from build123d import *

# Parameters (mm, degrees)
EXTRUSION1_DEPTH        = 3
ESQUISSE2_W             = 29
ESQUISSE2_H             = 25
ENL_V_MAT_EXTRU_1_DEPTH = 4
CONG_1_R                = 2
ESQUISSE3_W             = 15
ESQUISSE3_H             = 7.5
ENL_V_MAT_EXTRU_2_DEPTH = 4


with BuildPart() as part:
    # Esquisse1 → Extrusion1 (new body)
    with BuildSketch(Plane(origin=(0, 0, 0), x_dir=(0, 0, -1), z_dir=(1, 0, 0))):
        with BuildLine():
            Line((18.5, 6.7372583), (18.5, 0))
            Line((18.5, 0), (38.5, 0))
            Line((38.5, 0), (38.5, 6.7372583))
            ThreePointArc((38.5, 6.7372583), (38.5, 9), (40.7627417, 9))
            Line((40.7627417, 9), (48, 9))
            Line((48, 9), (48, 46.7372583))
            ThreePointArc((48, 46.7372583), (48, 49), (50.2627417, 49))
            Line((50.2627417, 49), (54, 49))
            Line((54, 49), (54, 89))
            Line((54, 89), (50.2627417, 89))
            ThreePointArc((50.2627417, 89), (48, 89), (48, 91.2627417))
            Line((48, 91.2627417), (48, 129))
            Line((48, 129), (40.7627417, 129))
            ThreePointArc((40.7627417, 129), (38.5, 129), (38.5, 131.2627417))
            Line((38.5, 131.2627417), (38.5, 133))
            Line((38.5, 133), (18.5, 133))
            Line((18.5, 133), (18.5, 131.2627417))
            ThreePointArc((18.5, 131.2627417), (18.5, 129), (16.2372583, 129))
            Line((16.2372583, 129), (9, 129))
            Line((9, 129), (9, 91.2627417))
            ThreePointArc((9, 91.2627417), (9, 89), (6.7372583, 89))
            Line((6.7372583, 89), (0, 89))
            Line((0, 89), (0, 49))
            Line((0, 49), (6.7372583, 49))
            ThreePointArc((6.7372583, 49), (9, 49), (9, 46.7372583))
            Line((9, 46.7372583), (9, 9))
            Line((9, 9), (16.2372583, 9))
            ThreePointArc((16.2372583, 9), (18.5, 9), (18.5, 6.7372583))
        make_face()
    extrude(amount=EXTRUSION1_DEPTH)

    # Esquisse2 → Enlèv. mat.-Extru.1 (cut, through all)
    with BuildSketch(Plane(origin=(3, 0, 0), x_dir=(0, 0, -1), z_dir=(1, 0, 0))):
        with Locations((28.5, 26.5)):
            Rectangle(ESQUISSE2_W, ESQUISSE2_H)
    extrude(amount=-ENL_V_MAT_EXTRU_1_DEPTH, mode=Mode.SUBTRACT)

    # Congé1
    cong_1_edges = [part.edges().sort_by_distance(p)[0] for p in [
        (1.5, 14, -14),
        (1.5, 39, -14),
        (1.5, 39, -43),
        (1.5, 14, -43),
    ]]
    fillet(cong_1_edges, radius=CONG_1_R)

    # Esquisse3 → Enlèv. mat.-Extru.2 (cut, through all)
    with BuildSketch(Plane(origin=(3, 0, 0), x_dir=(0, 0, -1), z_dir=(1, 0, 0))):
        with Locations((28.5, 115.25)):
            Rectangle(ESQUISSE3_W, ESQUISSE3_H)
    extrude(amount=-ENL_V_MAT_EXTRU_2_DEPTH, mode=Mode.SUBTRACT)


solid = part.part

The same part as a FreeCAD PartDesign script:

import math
import FreeCAD as App
import Part
import Sketcher

V = App.Vector


def edges_at(feature, points):
    """Names of the edges that pass closest to the given points."""
    edges = feature.Shape.Edges
    near = lambda p: min(range(len(edges)), key=lambda i: edges[i].distToShape(Part.Vertex(*p))[0])
    return sorted({f"Edge{near(p) + 1}" for p in points})


def add_polygon(sketch, points):
    """Adds a closed chain of lines whose ends are joined by coincident constraints."""
    first, n = sketch.GeometryCount, len(points)
    for a, b in zip(points, points[1:] + points[:1]):
        sketch.addGeometry(Part.LineSegment(App.Vector(*a, 0), App.Vector(*b, 0)), False)
    for i in range(n):
        sketch.addConstraint(Sketcher.Constraint("Coincident", first + i, 2, first + (i + 1) % n, 1))

doc = App.newDocument("Part")
body = doc.addObject("PartDesign::Body", "Body")

# Sketch on YZ plane
sketch1 = doc.addObject("Sketcher::SketchObject", "Sketch")
body.addObject(sketch1)
sketch1.AttachmentSupport = (doc.YZ_Plane, [""])
sketch1.MapMode = "FlatFace"
sketch1.addGeometry(Part.LineSegment(V(6.7, -18.5, 0), V(0, -18.5, 0)), False)
sketch1.addGeometry(Part.LineSegment(V(0, -18.5, 0), V(0, -38.5, 0)), False)
sketch1.addGeometry(Part.LineSegment(V(0, -38.5, 0), V(6.7, -38.5, 0)), False)
sketch1.addGeometry(Part.ArcOfCircle(Part.Circle(V(7.9, -39.6, 0), V(0, 0, 1), 1.6), math.radians(-45), math.radians(135)), False)
sketch1.addGeometry(Part.LineSegment(V(9, -40.8, 0), V(9, -48, 0)), False)
sketch1.addGeometry(Part.LineSegment(V(9, -48, 0), V(46.7, -48, 0)), False)
sketch1.addGeometry(Part.ArcOfCircle(Part.Circle(V(47.9, -49.1, 0), V(0, 0, 1), 1.6), math.radians(-45), math.radians(135)), False)
sketch1.addGeometry(Part.LineSegment(V(49, -50.3, 0), V(49, -54, 0)), False)
sketch1.addGeometry(Part.LineSegment(V(49, -54, 0), V(89, -54, 0)), False)
sketch1.addGeometry(Part.LineSegment(V(89, -54, 0), V(89, -50.3, 0)), False)
sketch1.addGeometry(Part.ArcOfCircle(Part.Circle(V(90.1, -49.1, 0), V(0, 0, 1), 1.6), math.radians(45), math.radians(225)), False)
sketch1.addGeometry(Part.LineSegment(V(91.3, -48, 0), V(129, -48, 0)), False)
sketch1.addGeometry(Part.LineSegment(V(129, -48, 0), V(129, -40.8, 0)), False)
sketch1.addGeometry(Part.ArcOfCircle(Part.Circle(V(130.1, -39.6, 0), V(0, 0, 1), 1.6), math.radians(45), math.radians(225)), False)
sketch1.addGeometry(Part.LineSegment(V(131.3, -38.5, 0), V(133, -38.5, 0)), False)
sketch1.addGeometry(Part.LineSegment(V(133, -38.5, 0), V(133, -18.5, 0)), False)
sketch1.addGeometry(Part.LineSegment(V(133, -18.5, 0), V(131.3, -18.5, 0)), False)
sketch1.addGeometry(Part.ArcOfCircle(Part.Circle(V(130.1, -17.4, 0), V(0, 0, 1), 1.6), math.radians(135), math.radians(315)), False)
sketch1.addGeometry(Part.LineSegment(V(129, -16.2, 0), V(129, -9, 0)), False)
sketch1.addGeometry(Part.LineSegment(V(129, -9, 0), V(91.3, -9, 0)), False)
sketch1.addGeometry(Part.ArcOfCircle(Part.Circle(V(90.1, -7.9, 0), V(0, 0, 1), 1.6), math.radians(135), math.radians(315)), False)
sketch1.addGeometry(Part.LineSegment(V(89, -6.7, 0), V(89, 0, 0)), False)
sketch1.addGeometry(Part.LineSegment(V(89, 0, 0), V(49, 0, 0)), False)
sketch1.addGeometry(Part.LineSegment(V(49, 0, 0), V(49, -6.7, 0)), False)
sketch1.addGeometry(Part.ArcOfCircle(Part.Circle(V(47.9, -7.9, 0), V(0, 0, 1), 1.6), math.radians(-135), math.radians(45)), False)
sketch1.addGeometry(Part.LineSegment(V(46.7, -9, 0), V(9, -9, 0)), False)
sketch1.addGeometry(Part.LineSegment(V(9, -9, 0), V(9, -16.2, 0)), False)
sketch1.addGeometry(Part.ArcOfCircle(Part.Circle(V(7.9, -17.4, 0), V(0, 0, 1), 1.6), math.radians(-135), math.radians(45)), False)
sketch1.addConstraint(Sketcher.Constraint("Coincident", 0, 2, 1, 1))
sketch1.addConstraint(Sketcher.Constraint("Coincident", 1, 2, 2, 1))
sketch1.addConstraint(Sketcher.Constraint("Coincident", 2, 2, 3, 2))
sketch1.addConstraint(Sketcher.Constraint("Coincident", 3, 1, 4, 1))
sketch1.addConstraint(Sketcher.Constraint("Coincident", 4, 2, 5, 1))
sketch1.addConstraint(Sketcher.Constraint("Coincident", 5, 2, 6, 2))
sketch1.addConstraint(Sketcher.Constraint("Coincident", 6, 1, 7, 1))
sketch1.addConstraint(Sketcher.Constraint("Coincident", 7, 2, 8, 1))
sketch1.addConstraint(Sketcher.Constraint("Coincident", 8, 2, 9, 1))
sketch1.addConstraint(Sketcher.Constraint("Coincident", 9, 2, 10, 2))
sketch1.addConstraint(Sketcher.Constraint("Coincident", 10, 1, 11, 1))
sketch1.addConstraint(Sketcher.Constraint("Coincident", 11, 2, 12, 1))
sketch1.addConstraint(Sketcher.Constraint("Coincident", 12, 2, 13, 2))
sketch1.addConstraint(Sketcher.Constraint("Coincident", 13, 1, 14, 1))
sketch1.addConstraint(Sketcher.Constraint("Coincident", 14, 2, 15, 1))
sketch1.addConstraint(Sketcher.Constraint("Coincident", 15, 2, 16, 1))
sketch1.addConstraint(Sketcher.Constraint("Coincident", 16, 2, 17, 2))
sketch1.addConstraint(Sketcher.Constraint("Coincident", 17, 1, 18, 1))
sketch1.addConstraint(Sketcher.Constraint("Coincident", 18, 2, 19, 1))
sketch1.addConstraint(Sketcher.Constraint("Coincident", 19, 2, 20, 2))
sketch1.addConstraint(Sketcher.Constraint("Coincident", 20, 1, 21, 1))
sketch1.addConstraint(Sketcher.Constraint("Coincident", 21, 2, 22, 1))
sketch1.addConstraint(Sketcher.Constraint("Coincident", 22, 2, 23, 1))
sketch1.addConstraint(Sketcher.Constraint("Coincident", 23, 2, 24, 2))
sketch1.addConstraint(Sketcher.Constraint("Coincident", 24, 1, 25, 1))
sketch1.addConstraint(Sketcher.Constraint("Coincident", 25, 2, 26, 1))
sketch1.addConstraint(Sketcher.Constraint("Coincident", 26, 2, 27, 2))
sketch1.addConstraint(Sketcher.Constraint("Coincident", 27, 1, 0, 1))
sketch1.addConstraint(Sketcher.Constraint("Horizontal", 0))
sketch1.addConstraint(Sketcher.Constraint("Vertical", 1))
sketch1.addConstraint(Sketcher.Constraint("Horizontal", 2))
sketch1.addConstraint(Sketcher.Constraint("Vertical", 4))
sketch1.addConstraint(Sketcher.Constraint("Horizontal", 5))
sketch1.addConstraint(Sketcher.Constraint("Vertical", 7))
sketch1.addConstraint(Sketcher.Constraint("Horizontal", 8))
sketch1.addConstraint(Sketcher.Constraint("Vertical", 9))
sketch1.addConstraint(Sketcher.Constraint("Horizontal", 11))
sketch1.addConstraint(Sketcher.Constraint("Vertical", 12))
sketch1.addConstraint(Sketcher.Constraint("Horizontal", 14))
sketch1.addConstraint(Sketcher.Constraint("Vertical", 15))
sketch1.addConstraint(Sketcher.Constraint("Horizontal", 16))
sketch1.addConstraint(Sketcher.Constraint("Vertical", 18))
sketch1.addConstraint(Sketcher.Constraint("Horizontal", 19))
sketch1.addConstraint(Sketcher.Constraint("Vertical", 21))
sketch1.addConstraint(Sketcher.Constraint("Horizontal", 22))
sketch1.addConstraint(Sketcher.Constraint("Vertical", 23))
sketch1.addConstraint(Sketcher.Constraint("Horizontal", 25))
sketch1.addConstraint(Sketcher.Constraint("Vertical", 26))
sketch1.addConstraint(Sketcher.Constraint("Equal", 3, 6))
sketch1.addConstraint(Sketcher.Constraint("Equal", 6, 10))
sketch1.addConstraint(Sketcher.Constraint("Equal", 10, 13))
sketch1.addConstraint(Sketcher.Constraint("Equal", 13, 17))
sketch1.addConstraint(Sketcher.Constraint("Equal", 17, 20))
sketch1.addConstraint(Sketcher.Constraint("Equal", 20, 24))
sketch1.addConstraint(Sketcher.Constraint("Equal", 24, 27))
sketch1.addConstraint(Sketcher.Constraint("PointOnObject", 0, 2, -2))
sketch1.addConstraint(Sketcher.Constraint("PointOnObject", 21, 2, -1))
sketch1.addConstraint(Sketcher.Constraint("Horizontal", 6, 3, 10, 3))
sketch1.addConstraint(Sketcher.Constraint("Horizontal", 3, 3, 13, 3))
sketch1.addConstraint(Sketcher.Constraint("Horizontal", 20, 3, 24, 3))
sketch1.addConstraint(Sketcher.Constraint("Horizontal", 17, 3, 27, 3))
sketch1.addConstraint(Sketcher.Constraint("Horizontal", 6, 1, 9, 2))
sketch1.addConstraint(Sketcher.Constraint("Horizontal", 5, 2, 10, 1))
sketch1.addConstraint(Sketcher.Constraint("Horizontal", 3, 1, 12, 2))
sketch1.addConstraint(Sketcher.Constraint("Horizontal", 2, 2, 13, 1))
sketch1.addConstraint(Sketcher.Constraint("Horizontal", 0, 2, 15, 2))
sketch1.addConstraint(Sketcher.Constraint("Horizontal", 20, 1, 23, 2))
sketch1.addConstraint(Sketcher.Constraint("Horizontal", 19, 2, 24, 1))
sketch1.addConstraint(Sketcher.Constraint("Horizontal", 17, 1, 26, 2))
sketch1.addConstraint(Sketcher.Constraint("Vertical", 13, 3, 17, 3))
sketch1.addConstraint(Sketcher.Constraint("Vertical", 10, 3, 20, 3))
sketch1.addConstraint(Sketcher.Constraint("Vertical", 6, 3, 24, 3))
sketch1.addConstraint(Sketcher.Constraint("Vertical", 3, 3, 27, 3))
sketch1.addConstraint(Sketcher.Constraint("Vertical", 13, 1, 16, 2))
sketch1.addConstraint(Sketcher.Constraint("Vertical", 12, 2, 17, 1))
sketch1.addConstraint(Sketcher.Constraint("Vertical", 10, 1, 19, 2))
sketch1.addConstraint(Sketcher.Constraint("Vertical", 9, 2, 20, 1))
sketch1.addConstraint(Sketcher.Constraint("Equal", 5, 11))
sketch1.addConstraint(Sketcher.Constraint("Equal", 12, 18))
sketch1.addConstraint(Sketcher.Constraint("Equal", 2, 21))
sketch1.addConstraint(Sketcher.Constraint("Radius", 3, 1.6))
sketch1.addConstraint(Sketcher.Constraint("DistanceX", 8, 1, 8, 2, 40.0))
sketch1.addConstraint(Sketcher.Constraint("DistanceY", 1, 2, 1, 1, 20.0))
sketch1.addConstraint(Sketcher.Constraint("DistanceX", -1, 1, 3, 1, 9.0))
sketch1.addConstraint(Sketcher.Constraint("DistanceY", 4, 2, -1, 1, 48.0))
sketch1.addConstraint(Sketcher.Constraint("DistanceX", -1, 1, 6, 1, 49.0))
sketch1.addConstraint(Sketcher.Constraint("DistanceY", 7, 2, -1, 1, 54.0))
sketch1.addConstraint(Sketcher.Constraint("DistanceX", -1, 1, 14, 2, 133.0))
sketch1.addConstraint(Sketcher.Constraint("DistanceY", 18, 2, -1, 1, 9.0))
sketch1.addConstraint(Sketcher.Constraint("DistanceX", 3, 3, 6, 3, 40.0))
sketch1.addConstraint(Sketcher.Constraint("DistanceX", 10, 1, 13, 1, 40.0))
sketch1.addConstraint(Sketcher.Constraint("DistanceX", -1, 1, 3, 3, 7.868629))
pad1 = doc.addObject("PartDesign::Pad", "Pad")
body.addObject(pad1)
pad1.Profile = sketch1
pad1.Length = 3

# Sketch on YZ plane
sketch2 = doc.addObject("Sketcher::SketchObject", "Sketch001")
body.addObject(sketch2)
sketch2.AttachmentSupport = (doc.YZ_Plane, [""])
sketch2.MapMode = "FlatFace"
sketch2.AttachmentOffset = App.Placement(V(0, 0, 3), App.Rotation())
add_polygon(sketch2, [(39, -14), (14, -14), (14, -43), (39, -43)])  # lines 0-3
sketch2.addConstraint(Sketcher.Constraint("Horizontal", 0))
sketch2.addConstraint(Sketcher.Constraint("Vertical", 1))
sketch2.addConstraint(Sketcher.Constraint("Horizontal", 2))
sketch2.addConstraint(Sketcher.Constraint("Vertical", 3))
sketch2.addConstraint(Sketcher.Constraint("DistanceX", 0, 2, 0, 1, 25.0))
sketch2.addConstraint(Sketcher.Constraint("DistanceY", 1, 2, 1, 1, 29.0))
sketch2.addConstraint(Sketcher.Constraint("DistanceX", -1, 1, 0, 2, 14.0))
sketch2.addConstraint(Sketcher.Constraint("DistanceY", 0, 2, -1, 1, 14.0))
pocket1 = doc.addObject("PartDesign::Pocket", "Pocket")
body.addObject(pocket1)
pocket1.Profile = sketch2
pocket1.Type = "ThroughAll"
doc.recompute()

fillet = doc.addObject("PartDesign::Fillet", "Fillet")
body.addObject(fillet)
fillet.Base = (pocket1, edges_at(pocket1, [
    (1.5, 14, -14),
    (1.5, 39, -14),
    (1.5, 39, -43),
    (1.5, 14, -43),
]))
fillet.Radius = 2

# Sketch on YZ plane
sketch3 = doc.addObject("Sketcher::SketchObject", "Sketch002")
body.addObject(sketch3)
sketch3.AttachmentSupport = (doc.YZ_Plane, [""])
sketch3.MapMode = "FlatFace"
sketch3.AttachmentOffset = App.Placement(V(0, 0, 3), App.Rotation())
add_polygon(sketch3, [(119, -21), (112, -21), (112, -36), (119, -36)])  # lines 0-3
sketch3.addConstraint(Sketcher.Constraint("Horizontal", 0))
sketch3.addConstraint(Sketcher.Constraint("Vertical", 1))
sketch3.addConstraint(Sketcher.Constraint("Horizontal", 2))
sketch3.addConstraint(Sketcher.Constraint("Vertical", 3))
sketch3.addConstraint(Sketcher.Constraint("DistanceY", 1, 2, 1, 1, 15.0))
sketch3.addConstraint(Sketcher.Constraint("DistanceX", 0, 2, 0, 1, 7.5))
sketch3.addConstraint(Sketcher.Constraint("DistanceY", 0, 2, -1, 1, 21.0))
sketch3.addConstraint(Sketcher.Constraint("DistanceX", -1, 1, 2, 2, 119.0))
pocket2 = doc.addObject("PartDesign::Pocket", "Pocket001")
body.addObject(pocket2)
pocket2.Profile = sketch3
pocket2.Type = "ThroughAll"

doc.recompute()
